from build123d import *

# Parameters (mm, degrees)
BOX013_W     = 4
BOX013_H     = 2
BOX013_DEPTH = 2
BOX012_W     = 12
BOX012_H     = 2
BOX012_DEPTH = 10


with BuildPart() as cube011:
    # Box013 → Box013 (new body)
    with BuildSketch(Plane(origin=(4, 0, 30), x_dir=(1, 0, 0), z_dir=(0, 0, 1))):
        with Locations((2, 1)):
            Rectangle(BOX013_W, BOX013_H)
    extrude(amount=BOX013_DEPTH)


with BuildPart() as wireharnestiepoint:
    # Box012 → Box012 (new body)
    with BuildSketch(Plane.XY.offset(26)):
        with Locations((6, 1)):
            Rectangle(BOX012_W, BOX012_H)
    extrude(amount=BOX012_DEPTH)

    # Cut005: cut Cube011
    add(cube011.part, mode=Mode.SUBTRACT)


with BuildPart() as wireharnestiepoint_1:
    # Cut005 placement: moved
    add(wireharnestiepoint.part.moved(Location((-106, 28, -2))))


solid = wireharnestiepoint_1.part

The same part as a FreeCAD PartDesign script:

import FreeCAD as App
import Part
import Sketcher
from FreeCAD import Vector
Q = App.Units.Quantity

doc = App.newDocument("Part")
body = doc.addObject("PartDesign::Body", "Body")

sketch1 = body.newObject("Sketcher::SketchObject", "Sketch")
sketch1.AttachmentSupport = (doc.getObject("XY_Plane"), [""])
sketch1.MapMode = "FlatFace"
sketch1.AttachmentOffset = App.Placement(Vector(0, 0, 30), App.Rotation())
sketch1.addGeometry([
    Part.LineSegment(Vector(4, 2, 0), Vector(4, 0, 0)),
    Part.LineSegment(Vector(4, 0, 0), Vector(8, 0, 0)),
    Part.LineSegment(Vector(8, 0, 0), Vector(8, 2, 0)),
    Part.LineSegment(Vector(8, 2, 0), Vector(4, 2, 0)),
], False)
sketch1.addConstraint([
    Sketcher.Constraint("Coincident", 0, 2, 1, 1),
    Sketcher.Constraint("Coincident", 1, 2, 2, 1),
    Sketcher.Constraint("Coincident", 2, 2, 3, 1),
    Sketcher.Constraint("Coincident", 3, 2, 0, 1),
    Sketcher.Constraint("Vertical", 0),
    Sketcher.Constraint("Horizontal", 1),
    Sketcher.Constraint("Vertical", 2),
    Sketcher.Constraint("Horizontal", 3),
    Sketcher.Constraint("PointOnObject", 0, 2, -1),
    Sketcher.Constraint("DistanceX", 1, 1, 1, 2, Q("4 mm")),
    Sketcher.Constraint("DistanceY", 0, 2, 0, 1, Q("2 mm")),
    Sketcher.Constraint("DistanceX", -1, 1, 0, 2, Q("4 mm")),
])
pad1 = body.newObject("PartDesign::Pad", "Pad")
pad1.Profile = sketch1
pad1.Length = 2
body2 = doc.addObject("PartDesign::Body", "Body001")

sketch2 = body2.newObject("Sketcher::SketchObject", "Sketch001")
sketch2.AttachmentSupport = (doc.getObject("XY_Plane001"), [""])
sketch2.MapMode = "FlatFace"
sketch2.AttachmentOffset = App.Placement(Vector(0, 0, 26), App.Rotation())
sketch2.addGeometry([
    Part.LineSegment(Vector(0, 2, 0), Vector(0, 0, 0)),
    Part.LineSegment(Vector(0, 0, 0), Vector(12, 0, 0)),
    Part.LineSegment(Vector(12, 0, 0), Vector(12, 2, 0)),
    Part.LineSegment(Vector(12, 2, 0), Vector(0, 2, 0)),
], False)
sketch2.addConstraint([
    Sketcher.Constraint("Coincident", 0, 2, 1, 1),
    Sketcher.Constraint("Coincident", 1, 2, 2, 1),
    Sketcher.Constraint("Coincident", 2, 2, 3, 1),
    Sketcher.Constraint("Coincident", 3, 2, 0, 1),
    Sketcher.Constraint("Vertical", 0),
    Sketcher.Constraint("Horizontal", 1),
    Sketcher.Constraint("Vertical", 2),
    Sketcher.Constraint("Horizontal", 3),
    Sketcher.Constraint("Coincident", 0, 2, -1, 1),
    Sketcher.Constraint("DistanceX", 1, 1, 1, 2, Q("12 mm")),
    Sketcher.Constraint("DistanceY", 0, 2, 0, 1, Q("2 mm")),
])
pad2 = body2.newObject("PartDesign::Pad", "Pad001")
pad2.Profile = sketch2
pad2.Length = 10
doc.recompute()

boolean = body2.newObject("PartDesign::Boolean", "Boolean")
boolean.Type = "Cut"
boolean.addObjects([body])
body3 = doc.addObject("PartDesign::Body", "Body002")
doc.recompute()

body2.Placement = App.Placement(Vector(-106, 28, -2), App.Rotation(Vector(0, 0, 1), 0))
boolean2 = body3.newObject("PartDesign::Boolean", "Boolean001")
boolean2.Type = "Fuse"
boolean2.addObjects([body2])

doc.recompute()
